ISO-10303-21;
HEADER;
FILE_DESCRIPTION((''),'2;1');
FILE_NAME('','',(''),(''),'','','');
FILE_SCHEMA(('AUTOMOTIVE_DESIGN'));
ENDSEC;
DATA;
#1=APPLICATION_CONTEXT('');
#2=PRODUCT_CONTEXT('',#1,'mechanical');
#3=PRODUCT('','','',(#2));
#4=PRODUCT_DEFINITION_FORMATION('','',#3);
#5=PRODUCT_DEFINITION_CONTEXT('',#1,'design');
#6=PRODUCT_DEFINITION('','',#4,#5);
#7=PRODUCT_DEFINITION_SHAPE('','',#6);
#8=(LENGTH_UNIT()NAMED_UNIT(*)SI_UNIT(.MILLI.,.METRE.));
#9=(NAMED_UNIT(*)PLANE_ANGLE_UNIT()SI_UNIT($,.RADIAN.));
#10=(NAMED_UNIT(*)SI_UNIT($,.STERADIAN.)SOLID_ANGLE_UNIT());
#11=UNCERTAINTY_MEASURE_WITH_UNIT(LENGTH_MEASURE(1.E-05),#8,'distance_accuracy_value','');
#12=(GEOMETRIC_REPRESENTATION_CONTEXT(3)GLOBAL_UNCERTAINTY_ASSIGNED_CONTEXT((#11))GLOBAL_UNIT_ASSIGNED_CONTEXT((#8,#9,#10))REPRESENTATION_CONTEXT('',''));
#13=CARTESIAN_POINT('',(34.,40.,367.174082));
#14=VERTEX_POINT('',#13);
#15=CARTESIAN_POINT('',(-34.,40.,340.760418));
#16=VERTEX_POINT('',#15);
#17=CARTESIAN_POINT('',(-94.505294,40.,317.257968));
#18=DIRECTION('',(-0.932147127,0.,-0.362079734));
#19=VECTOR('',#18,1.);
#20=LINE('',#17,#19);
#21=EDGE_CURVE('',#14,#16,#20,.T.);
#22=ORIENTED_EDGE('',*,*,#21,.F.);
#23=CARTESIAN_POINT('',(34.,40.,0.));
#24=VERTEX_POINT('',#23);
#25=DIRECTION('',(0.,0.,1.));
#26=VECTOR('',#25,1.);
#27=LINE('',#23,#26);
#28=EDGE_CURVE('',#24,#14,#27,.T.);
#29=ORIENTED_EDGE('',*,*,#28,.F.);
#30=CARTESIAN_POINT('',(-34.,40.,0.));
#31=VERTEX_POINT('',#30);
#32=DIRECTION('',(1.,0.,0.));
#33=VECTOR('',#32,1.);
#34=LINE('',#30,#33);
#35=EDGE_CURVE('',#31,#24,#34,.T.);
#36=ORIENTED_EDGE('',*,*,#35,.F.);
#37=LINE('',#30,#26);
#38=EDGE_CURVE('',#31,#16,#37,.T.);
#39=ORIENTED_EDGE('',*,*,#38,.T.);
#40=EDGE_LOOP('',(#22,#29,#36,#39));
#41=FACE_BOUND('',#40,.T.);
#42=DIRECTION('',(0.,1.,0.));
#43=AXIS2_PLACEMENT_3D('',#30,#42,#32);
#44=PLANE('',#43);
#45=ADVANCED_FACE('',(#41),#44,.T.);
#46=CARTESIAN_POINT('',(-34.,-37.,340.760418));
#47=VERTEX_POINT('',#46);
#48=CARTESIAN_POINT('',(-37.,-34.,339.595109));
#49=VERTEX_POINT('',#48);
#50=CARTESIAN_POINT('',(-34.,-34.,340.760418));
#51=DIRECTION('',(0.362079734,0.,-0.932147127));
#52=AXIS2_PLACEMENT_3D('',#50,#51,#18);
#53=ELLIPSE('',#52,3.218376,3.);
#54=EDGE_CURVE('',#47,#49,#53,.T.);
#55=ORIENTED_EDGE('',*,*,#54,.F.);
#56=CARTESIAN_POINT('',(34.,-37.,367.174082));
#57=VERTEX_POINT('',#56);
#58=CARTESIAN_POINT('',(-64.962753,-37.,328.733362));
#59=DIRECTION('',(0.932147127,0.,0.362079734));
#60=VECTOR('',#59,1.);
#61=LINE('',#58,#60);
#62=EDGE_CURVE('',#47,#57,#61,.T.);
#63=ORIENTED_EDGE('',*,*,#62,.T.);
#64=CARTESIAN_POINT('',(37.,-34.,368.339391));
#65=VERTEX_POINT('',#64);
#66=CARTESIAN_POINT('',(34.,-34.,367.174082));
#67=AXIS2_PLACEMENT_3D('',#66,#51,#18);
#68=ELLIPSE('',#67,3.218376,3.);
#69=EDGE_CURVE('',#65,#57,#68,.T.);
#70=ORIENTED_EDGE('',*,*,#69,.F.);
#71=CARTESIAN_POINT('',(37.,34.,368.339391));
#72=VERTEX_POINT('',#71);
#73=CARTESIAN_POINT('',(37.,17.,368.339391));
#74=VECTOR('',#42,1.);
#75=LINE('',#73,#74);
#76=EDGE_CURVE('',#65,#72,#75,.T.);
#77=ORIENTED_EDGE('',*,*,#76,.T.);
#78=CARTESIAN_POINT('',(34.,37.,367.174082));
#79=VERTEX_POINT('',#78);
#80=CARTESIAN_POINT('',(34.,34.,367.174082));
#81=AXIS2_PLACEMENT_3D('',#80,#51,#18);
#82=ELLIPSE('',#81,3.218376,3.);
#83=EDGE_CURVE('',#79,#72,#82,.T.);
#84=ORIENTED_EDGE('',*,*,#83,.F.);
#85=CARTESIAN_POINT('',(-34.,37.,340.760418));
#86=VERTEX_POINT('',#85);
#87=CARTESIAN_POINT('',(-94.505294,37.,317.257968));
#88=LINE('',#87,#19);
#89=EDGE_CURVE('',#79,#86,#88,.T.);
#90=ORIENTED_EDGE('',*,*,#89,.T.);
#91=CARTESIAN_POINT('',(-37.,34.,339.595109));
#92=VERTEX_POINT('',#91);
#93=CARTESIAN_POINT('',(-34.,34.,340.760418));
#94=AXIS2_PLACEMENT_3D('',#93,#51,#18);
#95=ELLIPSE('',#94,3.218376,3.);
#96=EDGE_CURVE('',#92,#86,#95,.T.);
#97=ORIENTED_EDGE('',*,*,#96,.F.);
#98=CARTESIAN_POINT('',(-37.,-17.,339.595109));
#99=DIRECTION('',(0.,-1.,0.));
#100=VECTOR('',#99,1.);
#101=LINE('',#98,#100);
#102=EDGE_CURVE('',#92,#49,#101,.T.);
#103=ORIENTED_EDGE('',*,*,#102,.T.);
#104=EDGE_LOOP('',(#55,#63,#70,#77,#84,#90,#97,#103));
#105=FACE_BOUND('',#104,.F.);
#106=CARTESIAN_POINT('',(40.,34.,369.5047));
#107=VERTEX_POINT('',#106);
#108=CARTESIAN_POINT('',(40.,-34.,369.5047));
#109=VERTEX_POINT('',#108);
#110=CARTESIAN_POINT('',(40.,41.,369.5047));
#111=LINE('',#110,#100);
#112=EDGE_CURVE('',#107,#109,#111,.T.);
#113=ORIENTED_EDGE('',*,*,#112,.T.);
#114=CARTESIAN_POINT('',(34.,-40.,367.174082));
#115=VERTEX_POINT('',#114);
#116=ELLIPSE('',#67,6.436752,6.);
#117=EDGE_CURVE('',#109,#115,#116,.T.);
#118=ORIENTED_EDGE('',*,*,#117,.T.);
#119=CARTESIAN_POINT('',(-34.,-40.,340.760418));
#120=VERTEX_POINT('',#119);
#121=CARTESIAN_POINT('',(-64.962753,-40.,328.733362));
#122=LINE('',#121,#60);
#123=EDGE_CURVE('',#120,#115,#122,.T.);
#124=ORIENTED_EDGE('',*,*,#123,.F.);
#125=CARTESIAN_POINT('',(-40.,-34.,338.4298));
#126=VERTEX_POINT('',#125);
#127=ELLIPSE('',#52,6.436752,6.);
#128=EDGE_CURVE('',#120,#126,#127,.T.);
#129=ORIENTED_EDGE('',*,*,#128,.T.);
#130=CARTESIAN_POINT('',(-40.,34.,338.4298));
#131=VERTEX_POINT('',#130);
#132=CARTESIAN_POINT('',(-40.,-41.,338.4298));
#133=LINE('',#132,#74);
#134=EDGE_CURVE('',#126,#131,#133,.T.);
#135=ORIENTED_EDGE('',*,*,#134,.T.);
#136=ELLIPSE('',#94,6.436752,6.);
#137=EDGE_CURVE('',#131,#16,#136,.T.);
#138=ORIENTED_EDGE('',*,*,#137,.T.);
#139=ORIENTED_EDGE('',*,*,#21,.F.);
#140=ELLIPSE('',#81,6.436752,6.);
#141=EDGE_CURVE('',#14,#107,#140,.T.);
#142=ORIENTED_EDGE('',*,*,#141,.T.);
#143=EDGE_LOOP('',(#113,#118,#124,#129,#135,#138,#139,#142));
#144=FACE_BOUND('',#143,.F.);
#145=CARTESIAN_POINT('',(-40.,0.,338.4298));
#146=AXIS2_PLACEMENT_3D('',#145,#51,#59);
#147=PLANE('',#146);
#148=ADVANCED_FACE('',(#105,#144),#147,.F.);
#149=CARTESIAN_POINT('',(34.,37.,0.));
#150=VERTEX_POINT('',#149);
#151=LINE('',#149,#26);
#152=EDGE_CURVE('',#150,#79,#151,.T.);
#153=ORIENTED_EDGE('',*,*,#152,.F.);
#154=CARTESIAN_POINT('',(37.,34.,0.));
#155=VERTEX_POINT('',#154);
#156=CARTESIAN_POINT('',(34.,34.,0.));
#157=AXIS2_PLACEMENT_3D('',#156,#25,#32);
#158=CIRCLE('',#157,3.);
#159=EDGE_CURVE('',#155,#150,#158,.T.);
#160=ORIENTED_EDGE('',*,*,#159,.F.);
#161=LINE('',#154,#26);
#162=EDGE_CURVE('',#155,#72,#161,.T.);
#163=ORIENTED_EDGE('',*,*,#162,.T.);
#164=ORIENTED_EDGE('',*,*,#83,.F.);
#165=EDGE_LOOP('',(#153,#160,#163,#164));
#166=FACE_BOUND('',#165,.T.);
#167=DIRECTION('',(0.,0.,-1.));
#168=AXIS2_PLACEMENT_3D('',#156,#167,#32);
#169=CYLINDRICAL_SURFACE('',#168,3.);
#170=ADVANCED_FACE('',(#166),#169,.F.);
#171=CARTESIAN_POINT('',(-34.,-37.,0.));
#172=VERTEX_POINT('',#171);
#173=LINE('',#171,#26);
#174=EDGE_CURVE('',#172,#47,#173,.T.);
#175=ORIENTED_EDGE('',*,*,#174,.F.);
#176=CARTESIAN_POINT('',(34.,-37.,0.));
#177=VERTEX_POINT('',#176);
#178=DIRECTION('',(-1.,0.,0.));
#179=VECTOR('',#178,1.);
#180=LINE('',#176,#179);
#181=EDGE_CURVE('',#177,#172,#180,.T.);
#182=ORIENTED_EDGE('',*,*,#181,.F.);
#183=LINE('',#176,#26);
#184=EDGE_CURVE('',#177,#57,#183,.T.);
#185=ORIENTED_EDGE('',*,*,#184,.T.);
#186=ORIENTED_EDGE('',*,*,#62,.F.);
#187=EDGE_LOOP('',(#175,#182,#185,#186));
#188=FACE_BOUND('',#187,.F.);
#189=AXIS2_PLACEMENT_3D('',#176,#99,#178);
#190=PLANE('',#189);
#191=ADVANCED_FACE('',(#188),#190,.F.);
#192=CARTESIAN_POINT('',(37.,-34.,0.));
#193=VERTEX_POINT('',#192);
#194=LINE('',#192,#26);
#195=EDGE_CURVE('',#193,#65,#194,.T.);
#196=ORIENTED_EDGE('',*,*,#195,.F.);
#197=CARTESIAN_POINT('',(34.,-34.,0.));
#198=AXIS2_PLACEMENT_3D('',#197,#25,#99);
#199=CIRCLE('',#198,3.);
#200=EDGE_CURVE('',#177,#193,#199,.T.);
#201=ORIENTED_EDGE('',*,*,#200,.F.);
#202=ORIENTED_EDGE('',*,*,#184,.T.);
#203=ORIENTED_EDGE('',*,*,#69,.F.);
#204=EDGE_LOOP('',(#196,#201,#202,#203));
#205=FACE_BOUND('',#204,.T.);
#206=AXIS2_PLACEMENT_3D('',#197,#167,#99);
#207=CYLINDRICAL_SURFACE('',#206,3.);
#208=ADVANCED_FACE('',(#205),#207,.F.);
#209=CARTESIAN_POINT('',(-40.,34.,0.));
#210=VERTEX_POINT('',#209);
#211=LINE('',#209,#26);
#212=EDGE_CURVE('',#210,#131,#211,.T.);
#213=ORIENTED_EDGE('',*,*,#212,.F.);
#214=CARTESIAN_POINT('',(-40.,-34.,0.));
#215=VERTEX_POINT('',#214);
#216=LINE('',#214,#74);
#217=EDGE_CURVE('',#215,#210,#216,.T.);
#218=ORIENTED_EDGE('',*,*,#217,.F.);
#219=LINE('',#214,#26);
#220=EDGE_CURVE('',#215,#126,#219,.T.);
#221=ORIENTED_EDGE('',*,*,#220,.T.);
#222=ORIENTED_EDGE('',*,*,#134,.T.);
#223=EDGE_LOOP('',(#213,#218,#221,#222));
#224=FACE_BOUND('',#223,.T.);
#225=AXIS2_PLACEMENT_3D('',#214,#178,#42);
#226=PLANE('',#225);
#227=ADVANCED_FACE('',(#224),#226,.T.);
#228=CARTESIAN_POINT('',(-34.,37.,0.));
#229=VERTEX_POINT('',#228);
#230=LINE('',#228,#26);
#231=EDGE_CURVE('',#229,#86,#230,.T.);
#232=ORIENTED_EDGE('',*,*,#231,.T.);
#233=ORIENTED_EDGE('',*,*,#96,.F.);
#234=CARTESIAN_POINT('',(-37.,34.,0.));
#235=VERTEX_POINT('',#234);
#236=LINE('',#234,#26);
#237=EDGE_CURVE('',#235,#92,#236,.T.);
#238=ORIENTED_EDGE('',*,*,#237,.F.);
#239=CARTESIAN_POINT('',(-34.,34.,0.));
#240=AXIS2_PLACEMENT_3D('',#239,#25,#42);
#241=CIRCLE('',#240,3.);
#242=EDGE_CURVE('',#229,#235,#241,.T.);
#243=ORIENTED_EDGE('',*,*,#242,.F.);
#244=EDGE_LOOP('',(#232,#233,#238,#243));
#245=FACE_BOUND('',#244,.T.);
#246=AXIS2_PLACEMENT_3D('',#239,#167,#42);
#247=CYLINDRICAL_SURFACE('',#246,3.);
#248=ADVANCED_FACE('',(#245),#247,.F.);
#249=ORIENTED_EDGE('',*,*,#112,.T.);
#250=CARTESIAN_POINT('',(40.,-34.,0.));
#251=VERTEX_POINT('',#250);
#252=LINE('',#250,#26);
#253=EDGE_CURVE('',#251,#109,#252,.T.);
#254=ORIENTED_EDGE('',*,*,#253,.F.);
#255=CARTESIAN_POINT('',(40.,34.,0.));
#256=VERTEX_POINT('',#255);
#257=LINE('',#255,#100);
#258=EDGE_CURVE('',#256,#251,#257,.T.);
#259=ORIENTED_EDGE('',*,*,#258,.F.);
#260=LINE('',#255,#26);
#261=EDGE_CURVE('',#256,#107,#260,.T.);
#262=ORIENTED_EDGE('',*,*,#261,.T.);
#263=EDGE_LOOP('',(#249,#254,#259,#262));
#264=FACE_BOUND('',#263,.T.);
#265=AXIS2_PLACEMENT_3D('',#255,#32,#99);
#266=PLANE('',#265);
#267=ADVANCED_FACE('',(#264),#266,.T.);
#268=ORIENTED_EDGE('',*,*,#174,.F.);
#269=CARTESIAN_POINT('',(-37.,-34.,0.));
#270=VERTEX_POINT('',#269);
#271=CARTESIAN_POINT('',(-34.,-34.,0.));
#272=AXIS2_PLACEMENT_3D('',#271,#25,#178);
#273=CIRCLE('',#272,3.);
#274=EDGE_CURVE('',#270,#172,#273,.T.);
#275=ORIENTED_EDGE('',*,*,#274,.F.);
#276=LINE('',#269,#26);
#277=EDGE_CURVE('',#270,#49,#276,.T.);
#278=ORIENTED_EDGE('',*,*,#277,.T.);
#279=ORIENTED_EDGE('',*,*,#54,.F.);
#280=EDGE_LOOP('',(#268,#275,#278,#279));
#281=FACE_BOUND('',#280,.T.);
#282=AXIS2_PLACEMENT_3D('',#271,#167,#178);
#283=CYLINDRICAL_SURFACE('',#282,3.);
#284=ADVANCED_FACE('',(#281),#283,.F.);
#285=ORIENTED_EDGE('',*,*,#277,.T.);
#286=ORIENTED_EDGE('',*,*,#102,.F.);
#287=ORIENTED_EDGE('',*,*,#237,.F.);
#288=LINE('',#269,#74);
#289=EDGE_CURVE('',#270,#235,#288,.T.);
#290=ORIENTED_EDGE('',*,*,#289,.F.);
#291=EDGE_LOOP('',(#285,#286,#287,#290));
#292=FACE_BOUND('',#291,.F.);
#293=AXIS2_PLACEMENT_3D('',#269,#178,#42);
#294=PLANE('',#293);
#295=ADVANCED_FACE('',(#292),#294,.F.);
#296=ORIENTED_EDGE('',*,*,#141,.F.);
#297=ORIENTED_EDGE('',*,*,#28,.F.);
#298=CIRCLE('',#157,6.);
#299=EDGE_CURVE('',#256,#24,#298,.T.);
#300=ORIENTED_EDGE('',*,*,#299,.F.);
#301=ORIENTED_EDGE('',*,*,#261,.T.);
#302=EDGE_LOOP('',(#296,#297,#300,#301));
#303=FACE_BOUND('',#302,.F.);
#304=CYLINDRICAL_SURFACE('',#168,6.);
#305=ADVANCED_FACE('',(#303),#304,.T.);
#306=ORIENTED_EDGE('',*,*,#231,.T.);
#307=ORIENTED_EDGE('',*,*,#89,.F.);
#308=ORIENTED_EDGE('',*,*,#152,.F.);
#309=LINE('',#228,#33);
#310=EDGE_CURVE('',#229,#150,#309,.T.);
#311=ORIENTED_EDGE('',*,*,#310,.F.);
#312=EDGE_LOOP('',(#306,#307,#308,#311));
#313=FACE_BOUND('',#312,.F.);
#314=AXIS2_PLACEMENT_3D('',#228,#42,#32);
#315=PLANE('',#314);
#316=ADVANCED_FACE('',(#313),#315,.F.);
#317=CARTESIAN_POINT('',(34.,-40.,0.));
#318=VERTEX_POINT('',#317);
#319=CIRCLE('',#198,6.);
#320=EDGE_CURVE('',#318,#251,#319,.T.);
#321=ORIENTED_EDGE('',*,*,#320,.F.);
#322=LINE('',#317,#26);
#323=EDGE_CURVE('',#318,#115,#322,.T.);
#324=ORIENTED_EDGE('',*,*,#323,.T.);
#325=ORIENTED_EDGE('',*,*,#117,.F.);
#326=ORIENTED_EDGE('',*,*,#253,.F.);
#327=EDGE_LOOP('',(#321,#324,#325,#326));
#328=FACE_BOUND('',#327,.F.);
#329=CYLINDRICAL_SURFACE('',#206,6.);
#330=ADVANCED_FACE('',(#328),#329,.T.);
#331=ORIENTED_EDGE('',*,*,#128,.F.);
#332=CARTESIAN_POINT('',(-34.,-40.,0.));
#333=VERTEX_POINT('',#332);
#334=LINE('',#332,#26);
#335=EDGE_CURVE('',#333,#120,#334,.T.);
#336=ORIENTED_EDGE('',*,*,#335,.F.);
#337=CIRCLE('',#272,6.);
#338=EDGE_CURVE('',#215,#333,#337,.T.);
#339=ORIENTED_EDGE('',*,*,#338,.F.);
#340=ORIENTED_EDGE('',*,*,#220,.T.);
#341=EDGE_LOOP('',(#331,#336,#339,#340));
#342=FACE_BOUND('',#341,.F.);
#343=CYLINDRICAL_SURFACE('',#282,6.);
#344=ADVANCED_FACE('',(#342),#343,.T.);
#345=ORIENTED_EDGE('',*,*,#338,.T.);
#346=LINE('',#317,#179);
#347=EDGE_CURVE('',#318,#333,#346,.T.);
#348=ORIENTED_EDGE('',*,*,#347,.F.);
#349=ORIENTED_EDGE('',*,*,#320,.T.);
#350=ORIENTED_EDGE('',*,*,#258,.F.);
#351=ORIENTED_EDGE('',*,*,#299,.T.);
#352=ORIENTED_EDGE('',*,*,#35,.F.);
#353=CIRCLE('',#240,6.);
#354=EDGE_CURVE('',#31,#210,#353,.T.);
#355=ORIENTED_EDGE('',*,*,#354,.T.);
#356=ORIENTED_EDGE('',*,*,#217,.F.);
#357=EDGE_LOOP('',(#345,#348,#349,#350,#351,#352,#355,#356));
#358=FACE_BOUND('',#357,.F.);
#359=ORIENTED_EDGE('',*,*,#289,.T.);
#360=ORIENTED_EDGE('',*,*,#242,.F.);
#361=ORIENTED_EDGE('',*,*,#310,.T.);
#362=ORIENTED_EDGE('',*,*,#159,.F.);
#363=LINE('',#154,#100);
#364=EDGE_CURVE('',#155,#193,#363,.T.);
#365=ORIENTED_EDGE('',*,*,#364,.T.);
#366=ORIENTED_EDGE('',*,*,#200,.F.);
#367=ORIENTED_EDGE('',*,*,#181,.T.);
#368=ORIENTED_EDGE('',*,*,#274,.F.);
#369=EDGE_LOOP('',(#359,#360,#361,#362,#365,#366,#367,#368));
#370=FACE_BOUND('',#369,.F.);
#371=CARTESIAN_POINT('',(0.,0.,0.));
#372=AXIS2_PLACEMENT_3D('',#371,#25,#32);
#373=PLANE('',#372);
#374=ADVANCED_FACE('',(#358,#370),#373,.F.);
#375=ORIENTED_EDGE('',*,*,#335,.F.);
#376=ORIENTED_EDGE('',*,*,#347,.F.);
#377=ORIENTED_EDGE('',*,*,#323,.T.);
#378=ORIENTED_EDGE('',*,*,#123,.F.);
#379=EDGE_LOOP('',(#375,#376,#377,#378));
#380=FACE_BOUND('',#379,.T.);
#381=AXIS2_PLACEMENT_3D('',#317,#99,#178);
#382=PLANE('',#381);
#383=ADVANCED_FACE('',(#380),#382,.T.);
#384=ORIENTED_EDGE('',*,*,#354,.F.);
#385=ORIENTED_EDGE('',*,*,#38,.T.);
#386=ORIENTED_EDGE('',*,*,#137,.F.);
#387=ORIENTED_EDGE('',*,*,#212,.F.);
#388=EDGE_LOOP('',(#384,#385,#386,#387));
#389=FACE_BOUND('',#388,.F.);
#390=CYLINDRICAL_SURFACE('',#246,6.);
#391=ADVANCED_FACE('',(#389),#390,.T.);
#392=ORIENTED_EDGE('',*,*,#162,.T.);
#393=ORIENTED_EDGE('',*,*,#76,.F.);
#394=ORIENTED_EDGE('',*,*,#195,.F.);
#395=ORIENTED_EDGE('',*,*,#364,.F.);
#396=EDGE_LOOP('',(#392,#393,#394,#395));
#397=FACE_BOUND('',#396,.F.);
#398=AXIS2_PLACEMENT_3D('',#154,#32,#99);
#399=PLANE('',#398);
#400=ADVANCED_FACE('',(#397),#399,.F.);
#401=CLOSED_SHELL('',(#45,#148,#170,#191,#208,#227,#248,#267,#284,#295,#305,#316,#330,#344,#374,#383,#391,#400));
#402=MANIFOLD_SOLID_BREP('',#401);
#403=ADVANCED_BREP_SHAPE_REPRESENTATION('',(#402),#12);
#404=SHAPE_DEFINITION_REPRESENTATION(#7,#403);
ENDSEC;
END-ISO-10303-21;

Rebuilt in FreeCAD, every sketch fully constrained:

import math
import FreeCAD as App
import Part
import Sketcher
Q = App.Units.Quantity

doc = App.newDocument("Part")
body = doc.addObject("PartDesign::Body", "Body")

# Sketch on XY plane
sketch1 = body.newObject("Sketcher::SketchObject", "Sketch")
sketch1.AttachmentSupport = (doc.getObject("XY_Plane"), [""])
sketch1.MapMode = "FlatFace"
sketch1.addGeometry([
    Part.LineSegment(App.Vector(-40, 34, 0), App.Vector(-40, -34, 0)),  # 0
    Part.ArcOfCircle(Part.Circle(App.Vector(-34, -34, 0), App.Vector(0, 0, 1), 6), math.radians(180), math.radians(270)),  # 1
    Part.LineSegment(App.Vector(-34, -40, 0), App.Vector(34, -40, 0)),  # 2
    Part.ArcOfCircle(Part.Circle(App.Vector(34, -34, 0), App.Vector(0, 0, 1), 6), math.radians(-90), math.radians(0)),  # 3
    Part.LineSegment(App.Vector(40, -34, 0), App.Vector(40, 34, 0)),  # 4
    Part.ArcOfCircle(Part.Circle(App.Vector(34, 34, 0), App.Vector(0, 0, 1), 6), math.radians(0), math.radians(90)),  # 5
    Part.LineSegment(App.Vector(34, 40, 0), App.Vector(-34, 40, 0)),  # 6
    Part.ArcOfCircle(Part.Circle(App.Vector(-34, 34, 0), App.Vector(0, 0, 1), 6), math.radians(90), math.radians(180)),  # 7
    Part.ArcOfCircle(Part.Circle(App.Vector(-34, 34, 0), App.Vector(0, 0, 1), 3), math.radians(90), math.radians(180)),  # 8
    Part.LineSegment(App.Vector(-34, 37, 0), App.Vector(34, 37, 0)),  # 9
    Part.ArcOfCircle(Part.Circle(App.Vector(34, 34, 0), App.Vector(0, 0, 1), 3), math.radians(0), math.radians(90)),  # 10
    Part.LineSegment(App.Vector(37, 34, 0), App.Vector(37, -34, 0)),  # 11
    Part.ArcOfCircle(Part.Circle(App.Vector(34, -34, 0), App.Vector(0, 0, 1), 3), math.radians(-90), math.radians(0)),  # 12
    Part.LineSegment(App.Vector(34, -37, 0), App.Vector(-34, -37, 0)),  # 13
    Part.ArcOfCircle(Part.Circle(App.Vector(-34, -34, 0), App.Vector(0, 0, 1), 3), math.radians(180), math.radians(270)),  # 14
    Part.LineSegment(App.Vector(-37, -34, 0), App.Vector(-37, 34, 0)),  # 15
], False)
sketch1.addConstraint([
    Sketcher.Constraint("Tangent", 0, 2, 1, 1),
    Sketcher.Constraint("Tangent", 1, 2, 2, 1),
    Sketcher.Constraint("Tangent", 2, 2, 3, 1),
    Sketcher.Constraint("Tangent", 3, 2, 4, 1),
    Sketcher.Constraint("Tangent", 4, 2, 5, 1),
    Sketcher.Constraint("Tangent", 5, 2, 6, 1),
    Sketcher.Constraint("Tangent", 6, 2, 7, 1),
    Sketcher.Constraint("Tangent", 7, 2, 0, 1),
    Sketcher.Constraint("Tangent", 8, 1, 9, 1),
    Sketcher.Constraint("Tangent", 9, 2, 10, 2),
    Sketcher.Constraint("Tangent", 10, 1, 11, 1),
    Sketcher.Constraint("Tangent", 11, 2, 12, 2),
    Sketcher.Constraint("Tangent", 12, 1, 13, 1),
    Sketcher.Constraint("Tangent", 13, 2, 14, 2),
    Sketcher.Constraint("Tangent", 14, 1, 15, 1),
    Sketcher.Constraint("Tangent", 15, 2, 8, 2),
    Sketcher.Constraint("Vertical", 0),
    Sketcher.Constraint("Horizontal", 2),
    Sketcher.Constraint("Vertical", 4),
    Sketcher.Constraint("Horizontal", 6),
    Sketcher.Constraint("Horizontal", 9),
    Sketcher.Constraint("Vertical", 11),
    Sketcher.Constraint("Horizontal", 13),
    Sketcher.Constraint("Vertical", 15),
    Sketcher.Constraint("Coincident", 8, 3, 7, 3),
    Sketcher.Constraint("Coincident", 10, 3, 5, 3),
    Sketcher.Constraint("Coincident", 12, 3, 3, 3),
    Sketcher.Constraint("Equal", 1, 3),
    Sketcher.Constraint("Equal", 3, 5),
    Sketcher.Constraint("Equal", 5, 7),
    Sketcher.Constraint("Equal", 12, 14),
    Sketcher.Constraint("Symmetric", 1, 3, 5, 3, -1, 1),
    Sketcher.Constraint("Equal", 13, 0),
    Sketcher.Constraint("Radius", 1, Q("6 mm")),
    Sketcher.Constraint("Radius", 8, Q("3 mm")),
    Sketcher.Constraint("DistanceX", 0, 2, -1, 1, Q("40 mm")),
])
pad1 = body.newObject("PartDesign::Pad", "Pad")
pad1.Profile = sketch1
pad1.Length = 1000

# Sketch on XZ plane
sketch2 = body.newObject("Sketcher::SketchObject", "Sketch001")
sketch2.AttachmentSupport = (doc.getObject("XZ_Plane"), [""])
sketch2.MapMode = "FlatFace"
sketch2.addGeometry([
    Part.LineSegment(App.Vector(40, 370, 0), App.Vector(-40, 338, 0)),
    Part.LineSegment(App.Vector(-40, 338, 0), App.Vector(-40, 1000, 0)),
    Part.LineSegment(App.Vector(-40, 1000, 0), App.Vector(40, 1000, 0)),
    Part.LineSegment(App.Vector(40, 1000, 0), App.Vector(40, 370, 0)),
], False)
sketch2.addConstraint([
    Sketcher.Constraint("Coincident", 0, 2, 1, 1),
    Sketcher.Constraint("Coincident", 1, 2, 2, 1),
    Sketcher.Constraint("Coincident", 2, 2, 3, 1),
    Sketcher.Constraint("Coincident", 3, 2, 0, 1),
    Sketcher.Constraint("Vertical", 1),
    Sketcher.Constraint("Horizontal", 2),
    Sketcher.Constraint("Vertical", 3),
    Sketcher.Constraint("DistanceX", 2, 1, 2, 2, Q("80 mm")),
    Sketcher.Constraint("DistanceX", 0, 2, -1, 1, Q("40 mm")),
    Sketcher.Constraint("DistanceY", -1, 1, 1, 2, Q("1000 mm")),
    Sketcher.Constraint("DistanceY", 1, 1, 1, 2, Q("661.5702 mm")),
    Sketcher.Constraint("DistanceY", 3, 2, 3, 1, Q("630.4953 mm")),
])
pocket1 = body.newObject("PartDesign::Pocket", "Pocket")
pocket1.Profile = sketch2
pocket1.Type = "ThroughAll"
pocket1.Midplane = True

doc.recompute()
